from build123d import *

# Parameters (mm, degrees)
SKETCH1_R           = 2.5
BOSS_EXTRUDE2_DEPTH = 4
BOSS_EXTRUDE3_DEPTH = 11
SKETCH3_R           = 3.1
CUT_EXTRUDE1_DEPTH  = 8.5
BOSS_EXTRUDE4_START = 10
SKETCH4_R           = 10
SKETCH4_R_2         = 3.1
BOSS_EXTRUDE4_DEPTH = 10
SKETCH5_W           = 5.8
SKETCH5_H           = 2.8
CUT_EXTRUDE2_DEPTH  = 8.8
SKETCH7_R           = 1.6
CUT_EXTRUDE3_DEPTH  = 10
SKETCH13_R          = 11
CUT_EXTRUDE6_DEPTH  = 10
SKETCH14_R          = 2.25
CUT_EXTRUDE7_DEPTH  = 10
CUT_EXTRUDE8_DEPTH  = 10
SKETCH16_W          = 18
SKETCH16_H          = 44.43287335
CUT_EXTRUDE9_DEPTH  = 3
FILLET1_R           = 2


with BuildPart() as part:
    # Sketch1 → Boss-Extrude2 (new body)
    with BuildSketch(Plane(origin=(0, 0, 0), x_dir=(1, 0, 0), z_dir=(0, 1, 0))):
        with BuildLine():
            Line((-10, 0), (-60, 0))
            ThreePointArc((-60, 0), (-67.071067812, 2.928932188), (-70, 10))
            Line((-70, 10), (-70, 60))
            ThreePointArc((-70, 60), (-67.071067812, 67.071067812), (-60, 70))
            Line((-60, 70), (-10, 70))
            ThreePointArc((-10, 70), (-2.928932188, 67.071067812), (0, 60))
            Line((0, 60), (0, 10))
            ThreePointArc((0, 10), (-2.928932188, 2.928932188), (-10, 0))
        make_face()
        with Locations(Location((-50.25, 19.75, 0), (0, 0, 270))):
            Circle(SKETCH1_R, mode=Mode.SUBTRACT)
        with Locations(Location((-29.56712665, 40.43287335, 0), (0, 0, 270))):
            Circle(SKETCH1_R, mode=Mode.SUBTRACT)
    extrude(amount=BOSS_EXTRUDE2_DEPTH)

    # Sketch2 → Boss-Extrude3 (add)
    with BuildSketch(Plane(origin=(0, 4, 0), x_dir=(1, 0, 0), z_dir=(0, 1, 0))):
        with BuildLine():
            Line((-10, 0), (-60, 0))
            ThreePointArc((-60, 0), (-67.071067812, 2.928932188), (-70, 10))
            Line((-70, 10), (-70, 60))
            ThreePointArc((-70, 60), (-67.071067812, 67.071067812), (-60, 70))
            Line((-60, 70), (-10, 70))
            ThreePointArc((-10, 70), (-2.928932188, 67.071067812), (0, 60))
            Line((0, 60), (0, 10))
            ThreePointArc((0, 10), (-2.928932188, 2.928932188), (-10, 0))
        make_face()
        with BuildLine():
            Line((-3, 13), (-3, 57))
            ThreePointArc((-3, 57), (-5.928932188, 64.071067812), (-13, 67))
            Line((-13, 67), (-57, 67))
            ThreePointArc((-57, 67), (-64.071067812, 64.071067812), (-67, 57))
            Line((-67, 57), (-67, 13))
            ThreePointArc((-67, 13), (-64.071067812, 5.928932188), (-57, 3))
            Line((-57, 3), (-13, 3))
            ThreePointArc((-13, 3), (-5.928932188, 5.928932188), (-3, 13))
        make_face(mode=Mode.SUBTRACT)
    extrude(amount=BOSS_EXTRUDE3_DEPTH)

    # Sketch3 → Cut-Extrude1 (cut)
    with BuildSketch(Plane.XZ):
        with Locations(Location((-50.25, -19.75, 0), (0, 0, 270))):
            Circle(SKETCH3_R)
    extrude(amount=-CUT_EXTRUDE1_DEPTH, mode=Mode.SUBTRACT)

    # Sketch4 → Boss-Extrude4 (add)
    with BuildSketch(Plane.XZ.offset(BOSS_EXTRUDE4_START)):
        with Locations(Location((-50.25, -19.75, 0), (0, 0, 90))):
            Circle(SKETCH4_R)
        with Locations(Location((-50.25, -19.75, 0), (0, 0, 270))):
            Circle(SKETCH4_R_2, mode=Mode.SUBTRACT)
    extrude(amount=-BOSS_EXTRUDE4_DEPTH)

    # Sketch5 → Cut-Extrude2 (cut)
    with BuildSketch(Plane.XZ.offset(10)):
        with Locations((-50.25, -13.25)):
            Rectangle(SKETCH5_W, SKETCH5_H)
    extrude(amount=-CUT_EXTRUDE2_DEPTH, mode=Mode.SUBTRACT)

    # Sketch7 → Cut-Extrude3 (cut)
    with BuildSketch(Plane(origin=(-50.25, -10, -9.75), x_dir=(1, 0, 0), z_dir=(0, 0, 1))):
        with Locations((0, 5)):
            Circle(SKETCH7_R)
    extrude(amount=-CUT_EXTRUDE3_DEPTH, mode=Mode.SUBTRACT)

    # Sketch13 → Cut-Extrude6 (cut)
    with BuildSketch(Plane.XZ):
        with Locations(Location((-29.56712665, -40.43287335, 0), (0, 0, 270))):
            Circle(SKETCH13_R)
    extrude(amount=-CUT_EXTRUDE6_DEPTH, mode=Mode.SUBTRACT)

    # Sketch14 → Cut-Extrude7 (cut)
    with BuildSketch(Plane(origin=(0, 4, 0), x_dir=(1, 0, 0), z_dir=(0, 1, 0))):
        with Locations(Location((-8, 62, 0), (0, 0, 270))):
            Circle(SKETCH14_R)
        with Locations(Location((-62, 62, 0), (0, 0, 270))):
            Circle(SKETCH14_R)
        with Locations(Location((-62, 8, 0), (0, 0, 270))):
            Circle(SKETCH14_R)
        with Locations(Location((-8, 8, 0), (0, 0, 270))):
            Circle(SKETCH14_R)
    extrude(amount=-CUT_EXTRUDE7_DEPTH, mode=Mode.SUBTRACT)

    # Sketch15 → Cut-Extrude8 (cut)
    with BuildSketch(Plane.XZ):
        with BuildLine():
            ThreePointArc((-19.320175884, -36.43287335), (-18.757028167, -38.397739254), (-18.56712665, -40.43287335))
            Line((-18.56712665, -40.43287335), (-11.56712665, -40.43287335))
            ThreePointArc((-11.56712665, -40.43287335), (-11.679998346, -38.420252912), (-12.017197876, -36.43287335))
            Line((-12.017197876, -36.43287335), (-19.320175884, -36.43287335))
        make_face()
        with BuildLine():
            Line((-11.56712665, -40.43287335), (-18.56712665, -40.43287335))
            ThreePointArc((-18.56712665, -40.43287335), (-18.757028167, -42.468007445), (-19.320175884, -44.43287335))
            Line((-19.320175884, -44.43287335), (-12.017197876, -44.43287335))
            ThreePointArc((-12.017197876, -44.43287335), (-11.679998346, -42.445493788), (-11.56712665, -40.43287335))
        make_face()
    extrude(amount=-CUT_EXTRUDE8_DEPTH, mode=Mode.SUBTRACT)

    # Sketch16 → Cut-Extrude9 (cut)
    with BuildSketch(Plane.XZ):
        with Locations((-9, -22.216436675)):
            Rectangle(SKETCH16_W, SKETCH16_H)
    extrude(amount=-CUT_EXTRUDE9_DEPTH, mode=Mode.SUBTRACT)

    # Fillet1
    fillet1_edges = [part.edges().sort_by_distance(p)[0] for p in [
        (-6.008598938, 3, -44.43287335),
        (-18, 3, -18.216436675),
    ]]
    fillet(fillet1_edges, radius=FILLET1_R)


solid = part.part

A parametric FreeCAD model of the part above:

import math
import FreeCAD as App
import Part
import Sketcher
from FreeCAD import Vector
Q = App.Units.Quantity


def edges_at(feature, points):
    """Names of the edges that pass closest to the given points."""
    edges = feature.Shape.Edges
    near = lambda p: min(range(len(edges)), key=lambda i: edges[i].distToShape(Part.Vertex(*p))[0])
    return sorted({f"Edge{near(p) + 1}" for p in points})


def add_polygon(sketch, points):
    """Adds a closed chain of lines whose ends are joined by coincident constraints."""
    first, n = sketch.GeometryCount, len(points)
    for a, b in zip(points, points[1:] + points[:1]):
        sketch.addGeometry(Part.LineSegment(App.Vector(*a, 0), App.Vector(*b, 0)), False)
    for i in range(n):
        sketch.addConstraint(Sketcher.Constraint("Coincident", first + i, 2, first + (i + 1) % n, 1))

doc = App.newDocument("Part")
body = doc.addObject("PartDesign::Body", "Body")

sketch1 = body.newObject("Sketcher::SketchObject", "Sketch")
sketch1.AttachmentSupport = (doc.getObject("XZ_Plane"), [""])
sketch1.MapMode = "FlatFace"
sketch1.addGeometry([
    Part.LineSegment(Vector(-60, 0, 0), Vector(-10, 0, 0)),
    Part.ArcOfCircle(Part.Circle(Vector(-10, -10, 0), Vector(0, 0, 1), 10), math.radians(0), math.radians(90)),
    Part.LineSegment(Vector(0, -10, 0), Vector(0, -60, 0)),
    Part.ArcOfCircle(Part.Circle(Vector(-10, -60, 0), Vector(0, 0, 1), 10), math.radians(-90), math.radians(0)),
    Part.LineSegment(Vector(-10, -70, 0), Vector(-60, -70, 0)),
    Part.ArcOfCircle(Part.Circle(Vector(-60, -60, 0), Vector(0, 0, 1), 10), math.radians(180), math.radians(270)),
    Part.LineSegment(Vector(-70, -60, 0), Vector(-70, -10, 0)),
    Part.ArcOfCircle(Part.Circle(Vector(-60, -10, 0), Vector(0, 0, 1), 10), math.radians(90), math.radians(180)),
    Part.Circle(Vector(-50.2, -19.8, 0), Vector(0, 0, 1), 2.5),
    Part.Circle(Vector(-29.6, -40.4, 0), Vector(0, 0, 1), 2.5),
], False)
sketch1.addConstraint([
    Sketcher.Constraint("Tangent", 0, 2, 1, 2),
    Sketcher.Constraint("Tangent", 1, 1, 2, 1),
    Sketcher.Constraint("Tangent", 2, 2, 3, 2),
    Sketcher.Constraint("Tangent", 3, 1, 4, 1),
    Sketcher.Constraint("Tangent", 4, 2, 5, 2),
    Sketcher.Constraint("Tangent", 5, 1, 6, 1),
    Sketcher.Constraint("Tangent", 6, 2, 7, 2),
    Sketcher.Constraint("Tangent", 7, 1, 0, 1),
    Sketcher.Constraint("Horizontal", 0),
    Sketcher.Constraint("Vertical", 2),
    Sketcher.Constraint("Horizontal", 4),
    Sketcher.Constraint("Vertical", 6),
    Sketcher.Constraint("Equal", 1, 3),
    Sketcher.Constraint("Equal", 3, 5),
    Sketcher.Constraint("Equal", 5, 7),
    Sketcher.Constraint("Equal", 8, 9),
    Sketcher.Constraint("PointOnObject", 0, 2, -1),
    Sketcher.Constraint("PointOnObject", 1, 1, -2),
    Sketcher.Constraint("Equal", 4, 2),
    Sketcher.Constraint("Diameter", 8, Q("5 mm")),
    Sketcher.Constraint("Radius", 1, Q("10 mm")),
    Sketcher.Constraint("DistanceX", 0, 1, 0, 2, Q("50 mm")),
    Sketcher.Constraint("DistanceX", 8, 3, -1, 1, Q("50.25 mm")),
    Sketcher.Constraint("DistanceY", 8, 3, -1, 1, Q("19.75 mm")),
    Sketcher.Constraint("DistanceX", 9, 3, -1, 1, Q("29.567127 mm")),
    Sketcher.Constraint("DistanceY", 9, 3, -1, 1, Q("40.432873 mm")),
])
pad1 = body.newObject("PartDesign::Pad", "Pad")
pad1.Profile = sketch1
pad1.Length = 4
pad1.Reversed = True

sketch2 = body.newObject("Sketcher::SketchObject", "Sketch001")
sketch2.AttachmentSupport = (doc.getObject("XZ_Plane"), [""])
sketch2.MapMode = "FlatFace"
sketch2.AttachmentOffset = App.Placement(Vector(0, 0, -4), App.Rotation())
sketch2.addGeometry([
    Part.LineSegment(Vector(-60, 0, 0), Vector(-10, 0, 0)),
    Part.ArcOfCircle(Part.Circle(Vector(-10, -10, 0), Vector(0, 0, 1), 10), math.radians(0), math.radians(90)),
    Part.LineSegment(Vector(0, -10, 0), Vector(0, -60, 0)),
    Part.ArcOfCircle(Part.Circle(Vector(-10, -60, 0), Vector(0, 0, 1), 10), math.radians(-90), math.radians(0)),
    Part.LineSegment(Vector(-10, -70, 0), Vector(-60, -70, 0)),
    Part.ArcOfCircle(Part.Circle(Vector(-60, -60, 0), Vector(0, 0, 1), 10), math.radians(180), math.radians(270)),
    Part.LineSegment(Vector(-70, -60, 0), Vector(-70, -10, 0)),
    Part.ArcOfCircle(Part.Circle(Vector(-60, -10, 0), Vector(0, 0, 1), 10), math.radians(90), math.radians(180)),
    Part.ArcOfCircle(Part.Circle(Vector(-13, -13, 0), Vector(0, 0, 1), 10), math.radians(0), math.radians(90)),
    Part.LineSegment(Vector(-13, -3, 0), Vector(-57, -3, 0)),
    Part.ArcOfCircle(Part.Circle(Vector(-57, -13, 0), Vector(0, 0, 1), 10), math.radians(90), math.radians(180)),
    Part.LineSegment(Vector(-67, -13, 0), Vector(-67, -57, 0)),
    Part.ArcOfCircle(Part.Circle(Vector(-57, -57, 0), Vector(0, 0, 1), 10), math.radians(180), math.radians(270)),
    Part.LineSegment(Vector(-57, -67, 0), Vector(-13, -67, 0)),
    Part.ArcOfCircle(Part.Circle(Vector(-13, -57, 0), Vector(0, 0, 1), 10), math.radians(-90), math.radians(0)),
    Part.LineSegment(Vector(-3, -57, 0), Vector(-3, -13, 0)),
], False)
sketch2.addConstraint([
    Sketcher.Constraint("Tangent", 0, 2, 1, 2),
    Sketcher.Constraint("Tangent", 1, 1, 2, 1),
    Sketcher.Constraint("Tangent", 2, 2, 3, 2),
    Sketcher.Constraint("Tangent", 3, 1, 4, 1),
    Sketcher.Constraint("Tangent", 4, 2, 5, 2),
    Sketcher.Constraint("Tangent", 5, 1, 6, 1),
    Sketcher.Constraint("Tangent", 6, 2, 7, 2),
    Sketcher.Constraint("Tangent", 7, 1, 0, 1),
    Sketcher.Constraint("Tangent", 8, 2, 9, 1),
    Sketcher.Constraint("Tangent", 9, 2, 10, 1),
    Sketcher.Constraint("Tangent", 10, 2, 11, 1),
    Sketcher.Constraint("Tangent", 11, 2, 12, 1),
    Sketcher.Constraint("Tangent", 12, 2, 13, 1),
    Sketcher.Constraint("Tangent", 13, 2, 14, 1),
    Sketcher.Constraint("Tangent", 14, 2, 15, 1),
    Sketcher.Constraint("Tangent", 15, 2, 8, 1),
    Sketcher.Constraint("Horizontal", 0),
    Sketcher.Constraint("Vertical", 2),
    Sketcher.Constraint("Horizontal", 4),
    Sketcher.Constraint("Vertical", 6),
    Sketcher.Constraint("Horizontal", 9),
    Sketcher.Constraint("Vertical", 11),
    Sketcher.Constraint("Horizontal", 13),
    Sketcher.Constraint("Vertical", 15),
    Sketcher.Constraint("Equal", 1, 3),
    Sketcher.Constraint("Equal", 3, 5),
    Sketcher.Constraint("Equal", 5, 7),
    Sketcher.Constraint("Equal", 7, 8),
    Sketcher.Constraint("Equal", 8, 10),
    Sketcher.Constraint("Equal", 10, 12),
    Sketcher.Constraint("Equal", 12, 14),
    Sketcher.Constraint("PointOnObject", 0, 2, -1),
    Sketcher.Constraint("PointOnObject", 1, 1, -2),
    Sketcher.Constraint("Equal", 4, 2),
    Sketcher.Constraint("Equal", 13, 11),
    Sketcher.Constraint("Radius", 1, Q("10 mm")),
    Sketcher.Constraint("DistanceX", 0, 1, 0, 2, Q("50 mm")),
    Sketcher.Constraint("DistanceX", 9, 2, 9, 1, Q("44 mm")),
    Sketcher.Constraint("DistanceX", 8, 3, -1, 1, Q("13 mm")),
    Sketcher.Constraint("DistanceY", 8, 3, -1, 1, Q("13 mm")),
])
pad2 = body.newObject("PartDesign::Pad", "Pad001")
pad2.Profile = sketch2
pad2.Length = 11
pad2.Reversed = True

sketch3 = body.newObject("Sketcher::SketchObject", "Sketch002")
sketch3.AttachmentSupport = (doc.getObject("XZ_Plane"), [""])
sketch3.MapMode = "FlatFace"
sketch3.addGeometry(Part.Circle(Vector(-50.2, -19.8, 0), Vector(0, 0, 1), 3.1), False)
sketch3.addConstraint([
    Sketcher.Constraint("Diameter", 0, Q("6.2 mm")),
    Sketcher.Constraint("DistanceX", 0, 3, -1, 1, Q("50.25 mm")),
    Sketcher.Constraint("DistanceY", 0, 3, -1, 1, Q("19.75 mm")),
])
pocket1 = body.newObject("PartDesign::Pocket", "Pocket")
pocket1.Profile = sketch3
pocket1.Length = 8.5

sketch4 = body.newObject("Sketcher::SketchObject", "Sketch003")
sketch4.AttachmentSupport = (doc.getObject("XZ_Plane"), [""])
sketch4.MapMode = "FlatFace"
sketch4.AttachmentOffset = App.Placement(Vector(0, 0, 10), App.Rotation())
sketch4.addGeometry([
    Part.Circle(Vector(-50.2, -19.8, 0), Vector(0, 0, 1), 10),
    Part.Circle(Vector(-50.2, -19.8, 0), Vector(0, 0, 1), 3.1),
], False)
sketch4.addConstraint([
    Sketcher.Constraint("Coincident", 1, 3, 0, 3),
    Sketcher.Constraint("Diameter", 0, Q("20 mm")),
    Sketcher.Constraint("Diameter", 1, Q("6.2 mm")),
    Sketcher.Constraint("DistanceX", 0, 3, -1, 1, Q("50.25 mm")),
    Sketcher.Constraint("DistanceY", 0, 3, -1, 1, Q("19.75 mm")),
])
pad3 = body.newObject("PartDesign::Pad", "Pad002")
pad3.Profile = sketch4
pad3.Length = 10
pad3.Reversed = True

sketch5 = body.newObject("Sketcher::SketchObject", "Sketch004")
sketch5.AttachmentSupport = (doc.getObject("XZ_Plane"), [""])
sketch5.MapMode = "FlatFace"
sketch5.AttachmentOffset = App.Placement(Vector(0, 0, 10), App.Rotation())
add_polygon(sketch5, [(-53.1, -11.8), (-53.1, -14.7), (-47.4, -14.7), (-47.4, -11.8)])
sketch5.addConstraint([
    Sketcher.Constraint("Vertical", 0),
    Sketcher.Constraint("Horizontal", 1),
    Sketcher.Constraint("Vertical", 2),
    Sketcher.Constraint("Horizontal", 3),
    Sketcher.Constraint("DistanceX", 1, 1, 1, 2, Q("5.8 mm")),
    Sketcher.Constraint("DistanceY", 0, 2, 0, 1, Q("2.8 mm")),
    Sketcher.Constraint("DistanceX", 0, 2, -1, 1, Q("53.15 mm")),
    Sketcher.Constraint("DistanceY", 0, 2, -1, 1, Q("14.65 mm")),
])
pocket2 = body.newObject("PartDesign::Pocket", "Pocket001")
pocket2.Profile = sketch5
pocket2.Length = 8.8

sketch6 = body.newObject("Sketcher::SketchObject", "Sketch005")
sketch6.AttachmentSupport = (doc.getObject("XY_Plane"), [""])
sketch6.MapMode = "FlatFace"
sketch6.AttachmentOffset = App.Placement(Vector(0, 0, -9.75), App.Rotation())
sketch6.addGeometry(Part.Circle(Vector(-50.2, -5, 0), Vector(0, 0, 1), 1.6), False)
sketch6.addConstraint([
    Sketcher.Constraint("Diameter", 0, Q("3.2 mm")),
    Sketcher.Constraint("DistanceY", 0, 3, -1, 1, Q("5 mm")),
    Sketcher.Constraint("DistanceX", 0, 3, -1, 1, Q("50.25 mm")),
])
pocket3 = body.newObject("PartDesign::Pocket", "Pocket002")
pocket3.Profile = sketch6
pocket3.Length = 10

sketch7 = body.newObject("Sketcher::SketchObject", "Sketch006")
sketch7.AttachmentSupport = (doc.getObject("XZ_Plane"), [""])
sketch7.MapMode = "FlatFace"
sketch7.addGeometry(Part.Circle(Vector(-30, -40, 0), Vector(0, 0, 1), 11), False)
sketch7.addConstraint([
    Sketcher.Constraint("Diameter", 0, Q("22 mm")),
    Sketcher.Constraint("DistanceX", 0, 3, -1, 1, Q("29.567127 mm")),
    Sketcher.Constraint("DistanceY", 0, 3, -1, 1, Q("40.432873 mm")),
])
pocket4 = body.newObject("PartDesign::Pocket", "Pocket003")
pocket4.Profile = sketch7
pocket4.Length = 10

sketch8 = body.newObject("Sketcher::SketchObject", "Sketch007")
sketch8.AttachmentSupport = (doc.getObject("XZ_Plane"), [""])
sketch8.MapMode = "FlatFace"
sketch8.AttachmentOffset = App.Placement(Vector(0, 0, -4), App.Rotation())
sketch8.addGeometry([
    Part.Circle(Vector(-8, -62, 0), Vector(0, 0, 1), 2.2),
    Part.Circle(Vector(-62, -62, 0), Vector(0, 0, 1), 2.2),
    Part.Circle(Vector(-62, -8, 0), Vector(0, 0, 1), 2.2),
    Part.Circle(Vector(-8, -8, 0), Vector(0, 0, 1), 2.2),
], False)
sketch8.addConstraint([
    Sketcher.Constraint("Equal", 0, 1),
    Sketcher.Constraint("Equal", 1, 2),
    Sketcher.Constraint("Equal", 2, 3),
    Sketcher.Constraint("Horizontal", 0, 3, 1, 3),
    Sketcher.Constraint("Horizontal", 2, 3, 3, 3),
    Sketcher.Constraint("Vertical", 1, 3, 2, 3),
    Sketcher.Constraint("Vertical", 0, 3, 3, 3),
    Sketcher.Constraint("Diameter", 0, Q("4.5 mm")),
    Sketcher.Constraint("DistanceX", 0, 3, -1, 1, Q("8 mm")),
    Sketcher.Constraint("DistanceY", 0, 3, -1, 1, Q("62 mm")),
    Sketcher.Constraint("DistanceX", 1, 3, -1, 1, Q("62 mm")),
    Sketcher.Constraint("DistanceY", 2, 3, -1, 1, Q("8 mm")),
])
pocket5 = body.newObject("PartDesign::Pocket", "Pocket004")
pocket5.Profile = sketch8
pocket5.Length = 10
pocket5.Reversed = True

sketch9 = body.newObject("Sketcher::SketchObject", "Sketch008")
sketch9.AttachmentSupport = (doc.getObject("XZ_Plane"), [""])
sketch9.MapMode = "FlatFace"
sketch9.addGeometry([
    Part.ArcOfCircle(Part.Circle(Vector(-29.6, -40.4, 0), Vector(0, 0, 1), 11), math.radians(0), math.radians(21)),
    Part.ArcOfCircle(Part.Circle(Vector(-29.6, -40.4, 0), Vector(0, 0, 1), 11), math.radians(-21), math.radians(0)),
    Part.LineSegment(Vector(-19.3, -44.4, 0), Vector(-12, -44.4, 0)),
    Part.ArcOfCircle(Part.Circle(Vector(-29.6, -40.4, 0), Vector(0, 0, 1), 18), math.radians(-12.84), math.radians(0)),
    Part.ArcOfCircle(Part.Circle(Vector(-29.6, -40.4, 0), Vector(0, 0, 1), 18), math.radians(0), math.radians(12.84)),
    Part.LineSegment(Vector(-12, -36.4, 0), Vector(-19.3, -36.4, 0)),
], False)
sketch9.addConstraint([
    Sketcher.Constraint("Tangent", 0, 1, 1, 2),
    Sketcher.Constraint("Coincident", 1, 1, 2, 1),
    Sketcher.Constraint("Coincident", 2, 2, 3, 1),
    Sketcher.Constraint("Tangent", 3, 2, 4, 1),
    Sketcher.Constraint("Coincident", 4, 2, 5, 1),
    Sketcher.Constraint("Coincident", 5, 2, 0, 2),
    Sketcher.Constraint("Horizontal", 2),
    Sketcher.Constraint("Horizontal", 5),
    Sketcher.Constraint("Coincident", 3, 3, 0, 3),
    Sketcher.Constraint("Equal", 0, 1),
    Sketcher.Constraint("Equal", 3, 4),
    Sketcher.Constraint("Horizontal", 4, 3, 0, 1),
    Sketcher.Constraint("Horizontal", 0, 1, 3, 2),
    Sketcher.Constraint("Vertical", 2, 2, 4, 2),
    Sketcher.Constraint("Radius", 0, Q("11 mm")),
    Sketcher.Constraint("Radius", 3, Q("18 mm")),
    Sketcher.Constraint("DistanceY", 1, 1, 0, 1, Q("4 mm")),
    Sketcher.Constraint("DistanceX", 0, 3, -1, 1, Q("29.567127 mm")),
    Sketcher.Constraint("DistanceY", 0, 3, -1, 1, Q("40.432873 mm")),
])
pocket6 = body.newObject("PartDesign::Pocket", "Pocket005")
pocket6.Profile = sketch9
pocket6.Length = 10

sketch10 = body.newObject("Sketcher::SketchObject", "Sketch009")
sketch10.AttachmentSupport = (doc.getObject("XZ_Plane"), [""])
sketch10.MapMode = "FlatFace"
add_polygon(sketch10, [(-18, 0), (-18, -44), (0, -44), (0, 0)])
sketch10.addConstraint([
    Sketcher.Constraint("Vertical", 0),
    Sketcher.Constraint("Horizontal", 1),
    Sketcher.Constraint("Vertical", 2),
    Sketcher.Constraint("Horizontal", 3),
    Sketcher.Constraint("Coincident", 2, 2, -1, 1),
    Sketcher.Constraint("DistanceX", 1, 1, 1, 2, Q("18 mm")),
    Sketcher.Constraint("DistanceY", 0, 2, 0, 1, Q("44.432873 mm")),
])
pocket7 = body.newObject("PartDesign::Pocket", "Pocket006")
pocket7.Profile = sketch10
pocket7.Length = 3
doc.recompute()

fillet = body.newObject("PartDesign::Fillet", "Fillet")
fillet.Base = (pocket7, edges_at(pocket7, [(-6.009, 3, -44.433), (-18, 3, -18.216)]))
fillet.Radius = 2

doc.recompute()
